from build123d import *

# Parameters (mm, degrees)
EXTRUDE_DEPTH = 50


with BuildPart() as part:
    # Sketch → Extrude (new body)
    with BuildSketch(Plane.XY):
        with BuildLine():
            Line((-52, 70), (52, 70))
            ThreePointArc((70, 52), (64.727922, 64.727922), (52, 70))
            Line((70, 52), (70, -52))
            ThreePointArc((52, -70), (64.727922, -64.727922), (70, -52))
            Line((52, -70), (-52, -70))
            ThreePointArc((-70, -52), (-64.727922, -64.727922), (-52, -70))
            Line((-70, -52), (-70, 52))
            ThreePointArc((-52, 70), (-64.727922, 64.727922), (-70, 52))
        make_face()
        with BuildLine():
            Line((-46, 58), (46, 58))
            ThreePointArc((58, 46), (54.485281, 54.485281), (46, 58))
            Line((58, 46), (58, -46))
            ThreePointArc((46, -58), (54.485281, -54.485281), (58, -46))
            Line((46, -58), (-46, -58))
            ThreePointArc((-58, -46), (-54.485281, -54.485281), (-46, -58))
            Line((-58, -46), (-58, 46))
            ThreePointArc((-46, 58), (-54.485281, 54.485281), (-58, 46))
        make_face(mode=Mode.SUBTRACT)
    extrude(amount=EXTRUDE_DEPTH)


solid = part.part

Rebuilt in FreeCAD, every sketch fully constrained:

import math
import FreeCAD as App
import Part
import Sketcher

V = App.Vector
Q = App.Units.Quantity

doc = App.newDocument("Part")
body = doc.addObject("PartDesign::Body", "Body")

sketch1 = doc.addObject("Sketcher::SketchObject", "Sketch")
body.addObject(sketch1)
sketch1.AttachmentSupport = (doc.XY_Plane, [""])
sketch1.MapMode = "FlatFace"
sketch1.addGeometry([
    Part.LineSegment(V(52, 70, 0), V(-52, 70, 0)),
    Part.ArcOfCircle(Part.Circle(V(-52, 52, 0), V(0, 0, 1), 18), math.radians(90), math.radians(180)),
    Part.LineSegment(V(-70, 52, 0), V(-70, -52, 0)),
    Part.ArcOfCircle(Part.Circle(V(-52, -52, 0), V(0, 0, 1), 18), math.radians(-180), math.radians(-90)),
    Part.LineSegment(V(-52, -70, 0), V(52, -70, 0)),
    Part.ArcOfCircle(Part.Circle(V(52, -52, 0), V(0, 0, 1), 18), math.radians(-90), math.radians(0)),
    Part.LineSegment(V(70, -52, 0), V(70, 52, 0)),
    Part.ArcOfCircle(Part.Circle(V(52, 52, 0), V(0, 0, 1), 18), math.radians(0), math.radians(90)),
    Part.LineSegment(V(-46, 58, 0), V(46, 58, 0)),
    Part.ArcOfCircle(Part.Circle(V(46, 46, 0), V(0, 0, 1), 12), math.radians(0), math.radians(90)),
    Part.LineSegment(V(58, 46, 0), V(58, -46, 0)),
    Part.ArcOfCircle(Part.Circle(V(46, -46, 0), V(0, 0, 1), 12), math.radians(-90), math.radians(0)),
    Part.LineSegment(V(46, -58, 0), V(-46, -58, 0)),
    Part.ArcOfCircle(Part.Circle(V(-46, -46, 0), V(0, 0, 1), 12), math.radians(-180), math.radians(-90)),
    Part.LineSegment(V(-58, -46, 0), V(-58, 46, 0)),
    Part.ArcOfCircle(Part.Circle(V(-46, 46, 0), V(0, 0, 1), 12), math.radians(90), math.radians(180)),
], False)
sketch1.addConstraint([
    Sketcher.Constraint("Tangent", 0, 2, 1, 1),
    Sketcher.Constraint("Tangent", 1, 2, 2, 1),
    Sketcher.Constraint("Tangent", 2, 2, 3, 1),
    Sketcher.Constraint("Tangent", 3, 2, 4, 1),
    Sketcher.Constraint("Tangent", 4, 2, 5, 1),
    Sketcher.Constraint("Tangent", 5, 2, 6, 1),
    Sketcher.Constraint("Tangent", 6, 2, 7, 1),
    Sketcher.Constraint("Tangent", 7, 2, 0, 1),
    Sketcher.Constraint("Tangent", 8, 2, 9, 2),
    Sketcher.Constraint("Tangent", 9, 1, 10, 1),
    Sketcher.Constraint("Tangent", 10, 2, 11, 2),
    Sketcher.Constraint("Tangent", 11, 1, 12, 1),
    Sketcher.Constraint("Tangent", 12, 2, 13, 2),
    Sketcher.Constraint("Tangent", 13, 1, 14, 1),
    Sketcher.Constraint("Tangent", 14, 2, 15, 2),
    Sketcher.Constraint("Tangent", 15, 1, 8, 1),
    Sketcher.Constraint("Horizontal", 0),
    Sketcher.Constraint("Vertical", 2),
    Sketcher.Constraint("Horizontal", 4),
    Sketcher.Constraint("Vertical", 6),
    Sketcher.Constraint("Horizontal", 8),
    Sketcher.Constraint("Vertical", 10),
    Sketcher.Constraint("Horizontal", 12),
    Sketcher.Constraint("Vertical", 14),
    Sketcher.Constraint("Equal", 1, 3),
    Sketcher.Constraint("Equal", 3, 5),
    Sketcher.Constraint("Equal", 5, 7),
    Sketcher.Constraint("Equal", 9, 11),
    Sketcher.Constraint("Equal", 11, 13),
    Sketcher.Constraint("Equal", 13, 15),
    Sketcher.Constraint("Symmetric", 1, 3, 5, 3, -1, 1),
    Sketcher.Constraint("Symmetric", 9, 3, 13, 3, -1, 1),
    Sketcher.Constraint("Equal", 4, 2),
    Sketcher.Constraint("Equal", 12, 10),
    Sketcher.Constraint("Radius", 1, Q("18 mm")),
    Sketcher.Constraint("Radius", 9, Q("12.000001 mm")),
    Sketcher.Constraint("DistanceX", 0, 2, 0, 1, Q("104 mm")),
    Sketcher.Constraint("DistanceX", 8, 1, 8, 2, Q("92 mm")),
])
pad1 = doc.addObject("PartDesign::Pad", "Pad")
body.addObject(pad1)
pad1.Profile = sketch1
pad1.Length = 50

doc.recompute()
